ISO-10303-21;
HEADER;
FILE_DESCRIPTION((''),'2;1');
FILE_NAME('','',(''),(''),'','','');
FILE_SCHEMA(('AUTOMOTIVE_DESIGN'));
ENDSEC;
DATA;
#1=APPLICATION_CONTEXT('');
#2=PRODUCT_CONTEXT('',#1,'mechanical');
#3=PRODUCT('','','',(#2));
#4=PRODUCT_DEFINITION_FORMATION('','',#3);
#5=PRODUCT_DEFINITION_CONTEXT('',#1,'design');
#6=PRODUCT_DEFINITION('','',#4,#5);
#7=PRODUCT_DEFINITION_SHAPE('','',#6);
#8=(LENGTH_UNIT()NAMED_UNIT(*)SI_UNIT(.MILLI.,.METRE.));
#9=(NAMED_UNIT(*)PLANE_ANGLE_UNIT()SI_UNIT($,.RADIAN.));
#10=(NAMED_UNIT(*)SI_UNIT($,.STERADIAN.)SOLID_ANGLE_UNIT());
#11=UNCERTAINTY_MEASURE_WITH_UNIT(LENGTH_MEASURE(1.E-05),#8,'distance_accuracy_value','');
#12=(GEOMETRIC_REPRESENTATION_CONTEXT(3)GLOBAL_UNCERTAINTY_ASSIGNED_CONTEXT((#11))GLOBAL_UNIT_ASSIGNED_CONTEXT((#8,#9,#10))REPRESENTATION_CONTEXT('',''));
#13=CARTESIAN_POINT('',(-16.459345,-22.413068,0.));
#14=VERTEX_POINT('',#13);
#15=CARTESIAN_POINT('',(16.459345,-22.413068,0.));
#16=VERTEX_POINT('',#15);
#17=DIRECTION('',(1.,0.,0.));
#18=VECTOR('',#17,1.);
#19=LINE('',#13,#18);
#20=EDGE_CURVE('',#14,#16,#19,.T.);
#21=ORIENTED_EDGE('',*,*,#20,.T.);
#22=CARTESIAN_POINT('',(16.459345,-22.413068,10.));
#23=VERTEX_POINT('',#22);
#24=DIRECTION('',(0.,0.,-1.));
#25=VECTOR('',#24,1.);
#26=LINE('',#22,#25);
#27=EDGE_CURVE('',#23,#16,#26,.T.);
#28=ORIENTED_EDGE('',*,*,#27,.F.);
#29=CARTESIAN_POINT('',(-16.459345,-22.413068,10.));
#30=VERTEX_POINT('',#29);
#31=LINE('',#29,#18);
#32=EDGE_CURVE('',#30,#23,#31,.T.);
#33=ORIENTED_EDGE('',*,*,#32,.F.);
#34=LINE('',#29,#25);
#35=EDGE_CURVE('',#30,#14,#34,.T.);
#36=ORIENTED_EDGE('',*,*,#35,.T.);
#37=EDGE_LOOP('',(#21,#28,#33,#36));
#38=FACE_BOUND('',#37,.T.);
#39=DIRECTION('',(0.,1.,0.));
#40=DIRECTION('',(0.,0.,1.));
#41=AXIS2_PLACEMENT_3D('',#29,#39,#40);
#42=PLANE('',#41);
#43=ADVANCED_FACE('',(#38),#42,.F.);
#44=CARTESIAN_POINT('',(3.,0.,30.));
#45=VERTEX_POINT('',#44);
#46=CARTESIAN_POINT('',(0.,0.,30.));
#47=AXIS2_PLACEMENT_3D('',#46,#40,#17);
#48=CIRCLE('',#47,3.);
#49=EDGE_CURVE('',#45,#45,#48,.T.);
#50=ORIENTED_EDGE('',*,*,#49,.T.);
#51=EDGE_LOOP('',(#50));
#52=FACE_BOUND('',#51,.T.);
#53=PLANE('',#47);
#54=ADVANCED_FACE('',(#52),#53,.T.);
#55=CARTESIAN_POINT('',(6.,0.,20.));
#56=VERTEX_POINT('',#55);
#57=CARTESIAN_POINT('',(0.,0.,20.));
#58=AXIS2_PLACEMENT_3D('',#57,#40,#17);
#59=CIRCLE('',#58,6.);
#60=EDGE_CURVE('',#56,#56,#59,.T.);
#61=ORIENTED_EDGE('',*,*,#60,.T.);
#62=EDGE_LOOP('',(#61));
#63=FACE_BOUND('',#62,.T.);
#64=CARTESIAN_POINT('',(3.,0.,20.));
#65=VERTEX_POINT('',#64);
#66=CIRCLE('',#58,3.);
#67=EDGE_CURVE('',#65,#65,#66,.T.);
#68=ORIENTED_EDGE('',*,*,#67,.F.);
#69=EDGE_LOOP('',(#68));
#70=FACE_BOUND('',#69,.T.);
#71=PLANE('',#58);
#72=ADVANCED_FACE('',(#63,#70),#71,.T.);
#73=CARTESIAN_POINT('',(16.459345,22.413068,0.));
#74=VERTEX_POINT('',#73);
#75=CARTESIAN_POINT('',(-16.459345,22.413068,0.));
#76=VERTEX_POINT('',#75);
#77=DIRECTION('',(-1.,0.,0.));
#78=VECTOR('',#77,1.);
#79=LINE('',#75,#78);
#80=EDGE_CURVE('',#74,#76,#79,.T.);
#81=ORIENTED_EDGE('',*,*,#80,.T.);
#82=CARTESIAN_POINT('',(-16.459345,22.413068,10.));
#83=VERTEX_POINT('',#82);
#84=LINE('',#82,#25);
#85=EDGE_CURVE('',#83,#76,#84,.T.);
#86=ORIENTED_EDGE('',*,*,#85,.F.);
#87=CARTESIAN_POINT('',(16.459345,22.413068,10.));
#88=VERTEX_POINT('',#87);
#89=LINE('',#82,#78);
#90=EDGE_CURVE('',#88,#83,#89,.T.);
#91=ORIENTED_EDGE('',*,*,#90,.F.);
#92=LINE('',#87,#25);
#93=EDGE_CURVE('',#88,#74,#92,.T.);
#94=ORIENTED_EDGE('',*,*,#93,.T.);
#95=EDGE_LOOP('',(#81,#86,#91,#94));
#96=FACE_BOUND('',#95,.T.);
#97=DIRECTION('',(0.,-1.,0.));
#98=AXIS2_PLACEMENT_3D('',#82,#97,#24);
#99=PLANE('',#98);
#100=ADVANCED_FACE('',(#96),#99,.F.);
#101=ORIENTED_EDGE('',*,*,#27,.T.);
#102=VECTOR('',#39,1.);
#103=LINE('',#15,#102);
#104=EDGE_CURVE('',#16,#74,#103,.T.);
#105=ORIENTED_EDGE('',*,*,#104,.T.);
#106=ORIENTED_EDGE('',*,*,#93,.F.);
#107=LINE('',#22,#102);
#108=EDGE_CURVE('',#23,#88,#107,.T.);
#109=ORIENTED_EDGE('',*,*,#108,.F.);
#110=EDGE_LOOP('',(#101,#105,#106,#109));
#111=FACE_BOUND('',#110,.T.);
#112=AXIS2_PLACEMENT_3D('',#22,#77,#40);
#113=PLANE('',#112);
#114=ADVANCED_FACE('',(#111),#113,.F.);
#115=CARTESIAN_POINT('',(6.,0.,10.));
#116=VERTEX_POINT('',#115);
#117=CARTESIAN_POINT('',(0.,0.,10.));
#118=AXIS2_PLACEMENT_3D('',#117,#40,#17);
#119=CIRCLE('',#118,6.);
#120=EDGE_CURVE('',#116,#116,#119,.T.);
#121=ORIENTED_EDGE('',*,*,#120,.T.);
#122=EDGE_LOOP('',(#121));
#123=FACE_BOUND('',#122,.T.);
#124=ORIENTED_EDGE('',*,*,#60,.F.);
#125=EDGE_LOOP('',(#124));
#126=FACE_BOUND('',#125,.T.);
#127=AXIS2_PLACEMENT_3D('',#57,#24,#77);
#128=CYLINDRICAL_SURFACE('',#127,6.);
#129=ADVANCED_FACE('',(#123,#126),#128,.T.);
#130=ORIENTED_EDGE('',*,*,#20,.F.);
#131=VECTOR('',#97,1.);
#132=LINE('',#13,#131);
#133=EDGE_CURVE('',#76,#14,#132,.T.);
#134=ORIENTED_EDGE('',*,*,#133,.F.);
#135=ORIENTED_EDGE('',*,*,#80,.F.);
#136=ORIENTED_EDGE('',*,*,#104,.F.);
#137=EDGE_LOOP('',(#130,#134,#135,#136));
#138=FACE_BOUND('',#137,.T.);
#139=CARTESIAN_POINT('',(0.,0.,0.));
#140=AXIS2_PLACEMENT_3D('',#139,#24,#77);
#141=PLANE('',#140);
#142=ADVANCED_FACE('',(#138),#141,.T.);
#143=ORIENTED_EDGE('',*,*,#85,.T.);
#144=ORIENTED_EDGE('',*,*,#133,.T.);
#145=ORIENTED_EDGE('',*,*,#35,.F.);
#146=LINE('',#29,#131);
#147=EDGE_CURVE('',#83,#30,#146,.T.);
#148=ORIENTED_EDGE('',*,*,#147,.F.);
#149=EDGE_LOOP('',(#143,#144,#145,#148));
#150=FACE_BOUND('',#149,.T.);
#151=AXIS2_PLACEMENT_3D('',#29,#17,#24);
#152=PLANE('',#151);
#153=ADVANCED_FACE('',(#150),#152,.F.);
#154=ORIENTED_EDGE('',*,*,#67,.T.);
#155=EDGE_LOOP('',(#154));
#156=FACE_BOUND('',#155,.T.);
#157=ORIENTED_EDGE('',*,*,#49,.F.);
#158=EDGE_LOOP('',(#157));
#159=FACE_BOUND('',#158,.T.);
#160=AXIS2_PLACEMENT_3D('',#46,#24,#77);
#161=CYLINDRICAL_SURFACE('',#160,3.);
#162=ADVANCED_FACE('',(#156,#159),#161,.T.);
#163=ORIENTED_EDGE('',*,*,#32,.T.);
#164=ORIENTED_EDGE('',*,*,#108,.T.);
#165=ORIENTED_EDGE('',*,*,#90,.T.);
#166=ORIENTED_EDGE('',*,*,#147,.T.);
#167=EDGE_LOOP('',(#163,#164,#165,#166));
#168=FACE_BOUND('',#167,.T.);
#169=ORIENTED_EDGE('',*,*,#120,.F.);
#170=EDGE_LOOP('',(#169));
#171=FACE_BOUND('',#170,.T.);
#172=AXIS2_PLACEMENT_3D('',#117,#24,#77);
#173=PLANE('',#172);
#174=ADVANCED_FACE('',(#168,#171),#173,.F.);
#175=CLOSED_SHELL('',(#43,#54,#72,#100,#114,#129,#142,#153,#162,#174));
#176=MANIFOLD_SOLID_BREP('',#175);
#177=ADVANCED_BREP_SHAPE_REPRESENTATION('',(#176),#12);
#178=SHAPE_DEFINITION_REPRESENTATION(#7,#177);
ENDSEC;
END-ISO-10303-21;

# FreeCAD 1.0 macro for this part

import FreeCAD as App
import Part
import Sketcher
from FreeCAD import Vector

doc = App.newDocument("Part")
body = doc.addObject("PartDesign::Body", "Body")

sketch1 = body.newObject("Sketcher::SketchObject", "Sketch")
sketch1.AttachmentSupport = (doc.getObject("XY_Plane"), [""])
sketch1.MapMode = "FlatFace"
sketch1.addGeometry([
    Part.LineSegment(Vector(-16.459345, 22.413068, 0), Vector(-16.459345, -22.413068, 0)),
    Part.LineSegment(Vector(-16.459345, -22.413068, 0), Vector(16.459345, -22.413068, 0)),
    Part.LineSegment(Vector(16.459345, -22.413068, 0), Vector(16.459345, 22.413068, 0)),
    Part.LineSegment(Vector(16.459345, 22.413068, 0), Vector(-16.459345, 22.413068, 0)),
], False)
sketch1.addConstraint([
    Sketcher.Constraint("Coincident", 0, 2, 1, 1),
    Sketcher.Constraint("Coincident", 1, 2, 2, 1),
    Sketcher.Constraint("Coincident", 2, 2, 3, 1),
    Sketcher.Constraint("Coincident", 3, 2, 0, 1),
    Sketcher.Constraint("Vertical", 0),
    Sketcher.Constraint("Horizontal", 1),
    Sketcher.Constraint("Vertical", 2),
    Sketcher.Constraint("Horizontal", 3),
    Sketcher.Constraint("Symmetric", 0, 2, 2, 2, -1, 1),
    Sketcher.Constraint("DistanceX", 1, 1, 1, 2, 32.91869),
    Sketcher.Constraint("DistanceY", 0, 2, 0, 1, 44.826135),
])
pad1 = body.newObject("PartDesign::Pad", "Pad")
pad1.Profile = sketch1
pad1.Length = 10

sketch2 = body.newObject("Sketcher::SketchObject", "Sketch001")
sketch2.AttachmentSupport = (doc.getObject("XY_Plane"), [""])
sketch2.MapMode = "FlatFace"
sketch2.AttachmentOffset = App.Placement(Vector(0, 0, 10), App.Rotation())
sketch2.addGeometry(Part.Circle(Vector(0, 0, 0), Vector(0, 0, 1), 6), False)
sketch2.addConstraint([
    Sketcher.Constraint("Coincident", 0, 3, -1, 1),
    Sketcher.Constraint("Diameter", 0, 12.0),
])
pad2 = body.newObject("PartDesign::Pad", "Pad001")
pad2.Profile = sketch2
pad2.Length = 10

sketch3 = body.newObject("Sketcher::SketchObject", "Sketch002")
sketch3.AttachmentSupport = (doc.getObject("XY_Plane"), [""])
sketch3.MapMode = "FlatFace"
sketch3.AttachmentOffset = App.Placement(Vector(0, 0, 20), App.Rotation())
sketch3.addGeometry(Part.Circle(Vector(0, 0, 0), Vector(0, 0, 1), 3), False)
sketch3.addConstraint([
    Sketcher.Constraint("Coincident", 0, 3, -1, 1),
    Sketcher.Constraint("Diameter", 0, 6.0),
])
pad3 = body.newObject("PartDesign::Pad", "Pad002")
pad3.Profile = sketch3
pad3.Length = 10

doc.recompute()
